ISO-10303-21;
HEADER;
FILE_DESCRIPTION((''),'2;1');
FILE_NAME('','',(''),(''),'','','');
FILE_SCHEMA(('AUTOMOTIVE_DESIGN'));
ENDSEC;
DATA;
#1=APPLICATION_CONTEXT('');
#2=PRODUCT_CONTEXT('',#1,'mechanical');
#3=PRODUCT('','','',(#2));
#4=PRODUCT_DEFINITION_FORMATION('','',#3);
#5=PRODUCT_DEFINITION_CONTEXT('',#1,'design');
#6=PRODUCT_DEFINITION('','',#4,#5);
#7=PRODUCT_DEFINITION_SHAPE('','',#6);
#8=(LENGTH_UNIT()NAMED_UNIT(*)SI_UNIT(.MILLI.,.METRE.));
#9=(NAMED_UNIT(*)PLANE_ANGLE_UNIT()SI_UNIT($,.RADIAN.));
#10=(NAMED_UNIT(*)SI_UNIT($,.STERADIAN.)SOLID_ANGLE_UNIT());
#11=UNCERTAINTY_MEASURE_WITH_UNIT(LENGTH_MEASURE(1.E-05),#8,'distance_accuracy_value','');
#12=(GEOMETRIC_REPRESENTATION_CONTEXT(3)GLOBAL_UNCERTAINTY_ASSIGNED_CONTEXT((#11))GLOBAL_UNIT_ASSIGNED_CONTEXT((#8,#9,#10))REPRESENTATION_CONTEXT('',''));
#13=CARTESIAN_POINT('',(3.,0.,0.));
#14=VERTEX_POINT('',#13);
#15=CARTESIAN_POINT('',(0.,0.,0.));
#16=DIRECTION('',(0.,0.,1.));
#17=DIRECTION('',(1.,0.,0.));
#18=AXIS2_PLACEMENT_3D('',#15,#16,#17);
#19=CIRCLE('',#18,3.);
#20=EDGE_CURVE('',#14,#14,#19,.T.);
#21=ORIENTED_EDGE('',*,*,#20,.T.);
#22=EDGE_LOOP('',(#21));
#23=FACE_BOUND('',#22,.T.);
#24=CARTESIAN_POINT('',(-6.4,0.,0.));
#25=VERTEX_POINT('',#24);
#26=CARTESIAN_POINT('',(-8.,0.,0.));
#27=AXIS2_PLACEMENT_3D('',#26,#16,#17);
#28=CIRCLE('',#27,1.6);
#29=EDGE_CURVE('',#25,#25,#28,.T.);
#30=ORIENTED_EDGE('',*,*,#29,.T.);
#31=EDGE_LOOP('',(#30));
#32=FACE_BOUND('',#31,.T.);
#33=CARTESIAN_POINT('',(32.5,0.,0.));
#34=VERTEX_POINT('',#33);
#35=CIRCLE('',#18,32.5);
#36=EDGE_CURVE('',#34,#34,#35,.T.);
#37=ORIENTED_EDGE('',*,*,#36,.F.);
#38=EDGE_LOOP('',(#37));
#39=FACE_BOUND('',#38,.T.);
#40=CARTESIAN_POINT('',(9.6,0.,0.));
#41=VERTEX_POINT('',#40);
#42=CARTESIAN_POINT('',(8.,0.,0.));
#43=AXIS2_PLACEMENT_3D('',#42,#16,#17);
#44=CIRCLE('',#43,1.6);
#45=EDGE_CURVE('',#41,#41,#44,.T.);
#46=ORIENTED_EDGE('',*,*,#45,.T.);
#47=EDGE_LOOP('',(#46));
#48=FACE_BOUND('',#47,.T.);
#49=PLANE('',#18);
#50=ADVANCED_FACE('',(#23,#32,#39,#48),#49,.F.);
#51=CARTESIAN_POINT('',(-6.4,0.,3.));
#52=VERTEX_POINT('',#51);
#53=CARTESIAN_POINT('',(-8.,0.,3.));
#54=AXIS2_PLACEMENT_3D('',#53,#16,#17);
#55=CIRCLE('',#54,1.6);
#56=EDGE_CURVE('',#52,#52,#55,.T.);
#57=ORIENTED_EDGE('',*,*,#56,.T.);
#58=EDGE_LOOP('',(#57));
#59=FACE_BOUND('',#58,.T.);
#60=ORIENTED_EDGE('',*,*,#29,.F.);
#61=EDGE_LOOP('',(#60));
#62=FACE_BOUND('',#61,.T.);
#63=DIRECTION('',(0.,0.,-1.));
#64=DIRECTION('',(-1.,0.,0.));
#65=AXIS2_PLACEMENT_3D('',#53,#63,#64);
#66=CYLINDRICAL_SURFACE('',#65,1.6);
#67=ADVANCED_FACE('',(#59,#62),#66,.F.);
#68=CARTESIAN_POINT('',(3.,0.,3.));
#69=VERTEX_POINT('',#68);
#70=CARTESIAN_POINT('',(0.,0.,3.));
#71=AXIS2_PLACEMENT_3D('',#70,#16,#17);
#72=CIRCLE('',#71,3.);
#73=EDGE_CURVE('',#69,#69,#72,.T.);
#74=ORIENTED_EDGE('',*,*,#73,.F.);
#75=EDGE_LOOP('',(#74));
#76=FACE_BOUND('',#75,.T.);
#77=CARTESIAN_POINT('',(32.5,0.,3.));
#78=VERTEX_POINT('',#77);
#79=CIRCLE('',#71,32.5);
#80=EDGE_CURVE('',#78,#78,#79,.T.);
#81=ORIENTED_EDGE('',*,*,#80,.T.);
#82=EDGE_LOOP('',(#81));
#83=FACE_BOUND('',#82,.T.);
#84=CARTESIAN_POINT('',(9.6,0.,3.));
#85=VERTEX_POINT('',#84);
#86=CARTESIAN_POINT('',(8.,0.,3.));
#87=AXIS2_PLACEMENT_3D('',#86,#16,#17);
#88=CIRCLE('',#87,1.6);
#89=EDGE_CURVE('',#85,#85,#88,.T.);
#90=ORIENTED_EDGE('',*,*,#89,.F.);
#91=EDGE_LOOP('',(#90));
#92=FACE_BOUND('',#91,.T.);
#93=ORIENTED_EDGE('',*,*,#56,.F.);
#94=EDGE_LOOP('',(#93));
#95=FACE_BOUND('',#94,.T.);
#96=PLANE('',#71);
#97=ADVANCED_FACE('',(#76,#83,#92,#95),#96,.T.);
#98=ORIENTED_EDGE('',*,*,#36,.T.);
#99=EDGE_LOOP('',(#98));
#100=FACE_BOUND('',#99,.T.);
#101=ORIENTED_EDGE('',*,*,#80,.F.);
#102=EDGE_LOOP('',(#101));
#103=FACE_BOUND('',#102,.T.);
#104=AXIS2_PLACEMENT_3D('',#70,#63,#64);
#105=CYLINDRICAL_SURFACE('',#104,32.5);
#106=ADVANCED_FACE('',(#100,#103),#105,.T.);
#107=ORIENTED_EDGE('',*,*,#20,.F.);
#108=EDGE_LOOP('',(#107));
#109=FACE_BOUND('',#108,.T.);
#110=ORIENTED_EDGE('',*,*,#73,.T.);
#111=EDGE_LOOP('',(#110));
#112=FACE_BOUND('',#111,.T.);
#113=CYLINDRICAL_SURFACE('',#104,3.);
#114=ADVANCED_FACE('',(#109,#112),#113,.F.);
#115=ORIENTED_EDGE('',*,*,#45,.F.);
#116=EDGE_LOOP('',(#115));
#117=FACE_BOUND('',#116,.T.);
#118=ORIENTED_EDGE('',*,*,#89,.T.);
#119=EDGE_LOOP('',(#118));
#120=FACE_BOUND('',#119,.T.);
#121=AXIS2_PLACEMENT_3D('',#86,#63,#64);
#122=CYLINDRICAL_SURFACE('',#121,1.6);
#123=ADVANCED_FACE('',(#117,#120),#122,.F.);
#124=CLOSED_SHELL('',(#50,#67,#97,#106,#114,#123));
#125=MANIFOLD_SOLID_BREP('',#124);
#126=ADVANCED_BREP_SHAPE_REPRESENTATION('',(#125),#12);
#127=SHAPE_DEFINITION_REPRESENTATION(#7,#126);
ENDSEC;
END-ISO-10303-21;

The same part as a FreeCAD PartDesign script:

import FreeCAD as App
import Part
import Sketcher
from FreeCAD import Vector
Q = App.Units.Quantity

doc = App.newDocument("Part")
params = doc.addObject("Spreadsheet::Sheet", "Params")
for row, (alias, value) in enumerate([
    ("sketch1_diameter", "65 mm"),
    ("sketch1_diameter2", "6 mm"),
    ("sketch1_diameter3", "3.2 mm"),
    ("pad1_length", "3 mm"),
], start=1):
    params.set(f"A{row}", alias)
    params.set(f"B{row}", "=" + value)
    params.setAlias(f"B{row}", alias)

body = doc.addObject("PartDesign::Body", "Body")

sketch1 = body.newObject("Sketcher::SketchObject", "Sketch")
sketch1.AttachmentSupport = (doc.getObject("XY_Plane"), [""])
sketch1.MapMode = "FlatFace"
sketch1.addGeometry([
    Part.Circle(Vector(0, 0, 0), Vector(0, 0, 1), 32.5),
    Part.Circle(Vector(-8, 0, 0), Vector(0, 0, 1), 1.6),
    Part.Circle(Vector(0, 0, 0), Vector(0, 0, 1), 3),
    Part.Circle(Vector(8, 0, 0), Vector(0, 0, 1), 1.6),
], False)
sketch1.addConstraint([
    Sketcher.Constraint("Coincident", 0, 3, -1, 1),
    Sketcher.Constraint("Coincident", 2, 3, -1, 1),
    Sketcher.Constraint("Equal", 1, 3),
    Sketcher.Constraint("Symmetric", 1, 3, 3, 3, -1, 1),
    Sketcher.Constraint("PointOnObject", 1, 3, -1),
    Sketcher.Constraint("Diameter", 0, Q("65 mm")),
    Sketcher.Constraint("Diameter", 2, Q("6 mm")),
    Sketcher.Constraint("Diameter", 1, Q("3.2 mm")),
    Sketcher.Constraint("DistanceX", 1, 3, -1, 1, Q("8 mm")),
])
sketch1.setExpression("Constraints[5]", "Params.sketch1_diameter")
sketch1.setExpression("Constraints[6]", "Params.sketch1_diameter2")
sketch1.setExpression("Constraints[7]", "Params.sketch1_diameter3")
pad1 = body.newObject("PartDesign::Pad", "Pad")
pad1.Profile = sketch1
pad1.setExpression("Length", "Params.pad1_length")

doc.recompute()
